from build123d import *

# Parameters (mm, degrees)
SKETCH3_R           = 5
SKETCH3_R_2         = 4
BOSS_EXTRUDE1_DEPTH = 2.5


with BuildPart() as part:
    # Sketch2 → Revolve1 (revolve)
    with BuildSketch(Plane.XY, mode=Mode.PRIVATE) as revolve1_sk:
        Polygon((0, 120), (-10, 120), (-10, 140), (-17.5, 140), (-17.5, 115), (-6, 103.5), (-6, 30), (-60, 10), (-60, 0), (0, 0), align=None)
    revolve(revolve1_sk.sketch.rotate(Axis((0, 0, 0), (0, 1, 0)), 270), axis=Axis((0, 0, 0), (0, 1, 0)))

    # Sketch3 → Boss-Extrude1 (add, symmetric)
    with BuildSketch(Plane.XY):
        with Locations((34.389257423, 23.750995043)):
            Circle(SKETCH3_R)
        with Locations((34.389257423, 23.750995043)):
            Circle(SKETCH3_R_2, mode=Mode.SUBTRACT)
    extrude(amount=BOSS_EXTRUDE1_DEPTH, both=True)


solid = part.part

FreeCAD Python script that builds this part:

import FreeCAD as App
import Part
import Sketcher
Q = App.Units.Quantity


def add_polygon(sketch, points):
    """Adds a closed chain of lines whose ends are joined by coincident constraints."""
    first, n = sketch.GeometryCount, len(points)
    for a, b in zip(points, points[1:] + points[:1]):
        sketch.addGeometry(Part.LineSegment(App.Vector(*a, 0), App.Vector(*b, 0)), False)
    for i in range(n):
        sketch.addConstraint(Sketcher.Constraint("Coincident", first + i, 2, first + (i + 1) % n, 1))

doc = App.newDocument("Part")
body = doc.addObject("PartDesign::Body", "Body")

# Sketch on XY plane
sketch1 = body.newObject("Sketcher::SketchObject", "Sketch")
sketch1.AttachmentSupport = (doc.getObject("XY_Plane"), [""])
sketch1.MapMode = "FlatFace"
add_polygon(sketch1, [(0, 120), (-10, 120), (-10, 140), (-18, 140), (-18, 115), (-6, 104), (-6, 30), (-60, 10), (-60, 0), (0, 0)])  # lines 0-9
sketch1.addConstraint([
    Sketcher.Constraint("Horizontal", 0),
    Sketcher.Constraint("Vertical", 1),
    Sketcher.Constraint("Horizontal", 2),
    Sketcher.Constraint("Vertical", 3),
    Sketcher.Constraint("Vertical", 5),
    Sketcher.Constraint("Vertical", 7),
    Sketcher.Constraint("Horizontal", 8),
    Sketcher.Constraint("Vertical", 9),
    Sketcher.Constraint("Coincident", 8, 2, -1, 1),
    Sketcher.Constraint("Equal", 0, 7),
    Sketcher.Constraint("DistanceX", 0, 2, 0, 1, 10.0),
    Sketcher.Constraint("DistanceX", 8, 1, 8, 2, 60.0),
    Sketcher.Constraint("DistanceY", 1, 1, 1, 2, 20.0),
    Sketcher.Constraint("DistanceY", 3, 2, 3, 1, 25.0),
    Sketcher.Constraint("DistanceY", 9, 1, 9, 2, 120.0),
    Sketcher.Constraint("Angle", 4, Q("-45 deg")),
    Sketcher.Constraint("DistanceX", 2, 2, 2, 1, 7.5),
    Sketcher.Constraint("DistanceY", 5, 2, 5, 1, 73.5),
    Sketcher.Constraint("DistanceX", 4, 2, -1, 1, 6.0),
])
revolution = body.newObject("PartDesign::Revolution", "Revolution")
revolution.Profile = sketch1
revolution.ReferenceAxis = (sketch1, ["V_Axis"])
revolution.Angle = 360

# Sketch on XY plane
sketch2 = body.newObject("Sketcher::SketchObject", "Sketch001")
sketch2.AttachmentSupport = (doc.getObject("XY_Plane"), [""])
sketch2.MapMode = "FlatFace"
sketch2.addGeometry([
    Part.Circle(App.Vector(34.4, 23.8, 0), App.Vector(0, 0, 1), 5),
    Part.Circle(App.Vector(34.4, 23.8, 0), App.Vector(0, 0, 1), 4),
], False)
sketch2.addConstraint([
    Sketcher.Constraint("Coincident", 1, 3, 0, 3),
    Sketcher.Constraint("Diameter", 0, 10.0),
    Sketcher.Constraint("Diameter", 1, 8.0),
    Sketcher.Constraint("DistanceX", -1, 1, 0, 3, 34.389257),
    Sketcher.Constraint("DistanceY", -1, 1, 0, 3, 23.750995),
])
pad1 = body.newObject("PartDesign::Pad", "Pad")
pad1.Profile = sketch2
pad1.Length = 5
pad1.Midplane = True

doc.recompute()
